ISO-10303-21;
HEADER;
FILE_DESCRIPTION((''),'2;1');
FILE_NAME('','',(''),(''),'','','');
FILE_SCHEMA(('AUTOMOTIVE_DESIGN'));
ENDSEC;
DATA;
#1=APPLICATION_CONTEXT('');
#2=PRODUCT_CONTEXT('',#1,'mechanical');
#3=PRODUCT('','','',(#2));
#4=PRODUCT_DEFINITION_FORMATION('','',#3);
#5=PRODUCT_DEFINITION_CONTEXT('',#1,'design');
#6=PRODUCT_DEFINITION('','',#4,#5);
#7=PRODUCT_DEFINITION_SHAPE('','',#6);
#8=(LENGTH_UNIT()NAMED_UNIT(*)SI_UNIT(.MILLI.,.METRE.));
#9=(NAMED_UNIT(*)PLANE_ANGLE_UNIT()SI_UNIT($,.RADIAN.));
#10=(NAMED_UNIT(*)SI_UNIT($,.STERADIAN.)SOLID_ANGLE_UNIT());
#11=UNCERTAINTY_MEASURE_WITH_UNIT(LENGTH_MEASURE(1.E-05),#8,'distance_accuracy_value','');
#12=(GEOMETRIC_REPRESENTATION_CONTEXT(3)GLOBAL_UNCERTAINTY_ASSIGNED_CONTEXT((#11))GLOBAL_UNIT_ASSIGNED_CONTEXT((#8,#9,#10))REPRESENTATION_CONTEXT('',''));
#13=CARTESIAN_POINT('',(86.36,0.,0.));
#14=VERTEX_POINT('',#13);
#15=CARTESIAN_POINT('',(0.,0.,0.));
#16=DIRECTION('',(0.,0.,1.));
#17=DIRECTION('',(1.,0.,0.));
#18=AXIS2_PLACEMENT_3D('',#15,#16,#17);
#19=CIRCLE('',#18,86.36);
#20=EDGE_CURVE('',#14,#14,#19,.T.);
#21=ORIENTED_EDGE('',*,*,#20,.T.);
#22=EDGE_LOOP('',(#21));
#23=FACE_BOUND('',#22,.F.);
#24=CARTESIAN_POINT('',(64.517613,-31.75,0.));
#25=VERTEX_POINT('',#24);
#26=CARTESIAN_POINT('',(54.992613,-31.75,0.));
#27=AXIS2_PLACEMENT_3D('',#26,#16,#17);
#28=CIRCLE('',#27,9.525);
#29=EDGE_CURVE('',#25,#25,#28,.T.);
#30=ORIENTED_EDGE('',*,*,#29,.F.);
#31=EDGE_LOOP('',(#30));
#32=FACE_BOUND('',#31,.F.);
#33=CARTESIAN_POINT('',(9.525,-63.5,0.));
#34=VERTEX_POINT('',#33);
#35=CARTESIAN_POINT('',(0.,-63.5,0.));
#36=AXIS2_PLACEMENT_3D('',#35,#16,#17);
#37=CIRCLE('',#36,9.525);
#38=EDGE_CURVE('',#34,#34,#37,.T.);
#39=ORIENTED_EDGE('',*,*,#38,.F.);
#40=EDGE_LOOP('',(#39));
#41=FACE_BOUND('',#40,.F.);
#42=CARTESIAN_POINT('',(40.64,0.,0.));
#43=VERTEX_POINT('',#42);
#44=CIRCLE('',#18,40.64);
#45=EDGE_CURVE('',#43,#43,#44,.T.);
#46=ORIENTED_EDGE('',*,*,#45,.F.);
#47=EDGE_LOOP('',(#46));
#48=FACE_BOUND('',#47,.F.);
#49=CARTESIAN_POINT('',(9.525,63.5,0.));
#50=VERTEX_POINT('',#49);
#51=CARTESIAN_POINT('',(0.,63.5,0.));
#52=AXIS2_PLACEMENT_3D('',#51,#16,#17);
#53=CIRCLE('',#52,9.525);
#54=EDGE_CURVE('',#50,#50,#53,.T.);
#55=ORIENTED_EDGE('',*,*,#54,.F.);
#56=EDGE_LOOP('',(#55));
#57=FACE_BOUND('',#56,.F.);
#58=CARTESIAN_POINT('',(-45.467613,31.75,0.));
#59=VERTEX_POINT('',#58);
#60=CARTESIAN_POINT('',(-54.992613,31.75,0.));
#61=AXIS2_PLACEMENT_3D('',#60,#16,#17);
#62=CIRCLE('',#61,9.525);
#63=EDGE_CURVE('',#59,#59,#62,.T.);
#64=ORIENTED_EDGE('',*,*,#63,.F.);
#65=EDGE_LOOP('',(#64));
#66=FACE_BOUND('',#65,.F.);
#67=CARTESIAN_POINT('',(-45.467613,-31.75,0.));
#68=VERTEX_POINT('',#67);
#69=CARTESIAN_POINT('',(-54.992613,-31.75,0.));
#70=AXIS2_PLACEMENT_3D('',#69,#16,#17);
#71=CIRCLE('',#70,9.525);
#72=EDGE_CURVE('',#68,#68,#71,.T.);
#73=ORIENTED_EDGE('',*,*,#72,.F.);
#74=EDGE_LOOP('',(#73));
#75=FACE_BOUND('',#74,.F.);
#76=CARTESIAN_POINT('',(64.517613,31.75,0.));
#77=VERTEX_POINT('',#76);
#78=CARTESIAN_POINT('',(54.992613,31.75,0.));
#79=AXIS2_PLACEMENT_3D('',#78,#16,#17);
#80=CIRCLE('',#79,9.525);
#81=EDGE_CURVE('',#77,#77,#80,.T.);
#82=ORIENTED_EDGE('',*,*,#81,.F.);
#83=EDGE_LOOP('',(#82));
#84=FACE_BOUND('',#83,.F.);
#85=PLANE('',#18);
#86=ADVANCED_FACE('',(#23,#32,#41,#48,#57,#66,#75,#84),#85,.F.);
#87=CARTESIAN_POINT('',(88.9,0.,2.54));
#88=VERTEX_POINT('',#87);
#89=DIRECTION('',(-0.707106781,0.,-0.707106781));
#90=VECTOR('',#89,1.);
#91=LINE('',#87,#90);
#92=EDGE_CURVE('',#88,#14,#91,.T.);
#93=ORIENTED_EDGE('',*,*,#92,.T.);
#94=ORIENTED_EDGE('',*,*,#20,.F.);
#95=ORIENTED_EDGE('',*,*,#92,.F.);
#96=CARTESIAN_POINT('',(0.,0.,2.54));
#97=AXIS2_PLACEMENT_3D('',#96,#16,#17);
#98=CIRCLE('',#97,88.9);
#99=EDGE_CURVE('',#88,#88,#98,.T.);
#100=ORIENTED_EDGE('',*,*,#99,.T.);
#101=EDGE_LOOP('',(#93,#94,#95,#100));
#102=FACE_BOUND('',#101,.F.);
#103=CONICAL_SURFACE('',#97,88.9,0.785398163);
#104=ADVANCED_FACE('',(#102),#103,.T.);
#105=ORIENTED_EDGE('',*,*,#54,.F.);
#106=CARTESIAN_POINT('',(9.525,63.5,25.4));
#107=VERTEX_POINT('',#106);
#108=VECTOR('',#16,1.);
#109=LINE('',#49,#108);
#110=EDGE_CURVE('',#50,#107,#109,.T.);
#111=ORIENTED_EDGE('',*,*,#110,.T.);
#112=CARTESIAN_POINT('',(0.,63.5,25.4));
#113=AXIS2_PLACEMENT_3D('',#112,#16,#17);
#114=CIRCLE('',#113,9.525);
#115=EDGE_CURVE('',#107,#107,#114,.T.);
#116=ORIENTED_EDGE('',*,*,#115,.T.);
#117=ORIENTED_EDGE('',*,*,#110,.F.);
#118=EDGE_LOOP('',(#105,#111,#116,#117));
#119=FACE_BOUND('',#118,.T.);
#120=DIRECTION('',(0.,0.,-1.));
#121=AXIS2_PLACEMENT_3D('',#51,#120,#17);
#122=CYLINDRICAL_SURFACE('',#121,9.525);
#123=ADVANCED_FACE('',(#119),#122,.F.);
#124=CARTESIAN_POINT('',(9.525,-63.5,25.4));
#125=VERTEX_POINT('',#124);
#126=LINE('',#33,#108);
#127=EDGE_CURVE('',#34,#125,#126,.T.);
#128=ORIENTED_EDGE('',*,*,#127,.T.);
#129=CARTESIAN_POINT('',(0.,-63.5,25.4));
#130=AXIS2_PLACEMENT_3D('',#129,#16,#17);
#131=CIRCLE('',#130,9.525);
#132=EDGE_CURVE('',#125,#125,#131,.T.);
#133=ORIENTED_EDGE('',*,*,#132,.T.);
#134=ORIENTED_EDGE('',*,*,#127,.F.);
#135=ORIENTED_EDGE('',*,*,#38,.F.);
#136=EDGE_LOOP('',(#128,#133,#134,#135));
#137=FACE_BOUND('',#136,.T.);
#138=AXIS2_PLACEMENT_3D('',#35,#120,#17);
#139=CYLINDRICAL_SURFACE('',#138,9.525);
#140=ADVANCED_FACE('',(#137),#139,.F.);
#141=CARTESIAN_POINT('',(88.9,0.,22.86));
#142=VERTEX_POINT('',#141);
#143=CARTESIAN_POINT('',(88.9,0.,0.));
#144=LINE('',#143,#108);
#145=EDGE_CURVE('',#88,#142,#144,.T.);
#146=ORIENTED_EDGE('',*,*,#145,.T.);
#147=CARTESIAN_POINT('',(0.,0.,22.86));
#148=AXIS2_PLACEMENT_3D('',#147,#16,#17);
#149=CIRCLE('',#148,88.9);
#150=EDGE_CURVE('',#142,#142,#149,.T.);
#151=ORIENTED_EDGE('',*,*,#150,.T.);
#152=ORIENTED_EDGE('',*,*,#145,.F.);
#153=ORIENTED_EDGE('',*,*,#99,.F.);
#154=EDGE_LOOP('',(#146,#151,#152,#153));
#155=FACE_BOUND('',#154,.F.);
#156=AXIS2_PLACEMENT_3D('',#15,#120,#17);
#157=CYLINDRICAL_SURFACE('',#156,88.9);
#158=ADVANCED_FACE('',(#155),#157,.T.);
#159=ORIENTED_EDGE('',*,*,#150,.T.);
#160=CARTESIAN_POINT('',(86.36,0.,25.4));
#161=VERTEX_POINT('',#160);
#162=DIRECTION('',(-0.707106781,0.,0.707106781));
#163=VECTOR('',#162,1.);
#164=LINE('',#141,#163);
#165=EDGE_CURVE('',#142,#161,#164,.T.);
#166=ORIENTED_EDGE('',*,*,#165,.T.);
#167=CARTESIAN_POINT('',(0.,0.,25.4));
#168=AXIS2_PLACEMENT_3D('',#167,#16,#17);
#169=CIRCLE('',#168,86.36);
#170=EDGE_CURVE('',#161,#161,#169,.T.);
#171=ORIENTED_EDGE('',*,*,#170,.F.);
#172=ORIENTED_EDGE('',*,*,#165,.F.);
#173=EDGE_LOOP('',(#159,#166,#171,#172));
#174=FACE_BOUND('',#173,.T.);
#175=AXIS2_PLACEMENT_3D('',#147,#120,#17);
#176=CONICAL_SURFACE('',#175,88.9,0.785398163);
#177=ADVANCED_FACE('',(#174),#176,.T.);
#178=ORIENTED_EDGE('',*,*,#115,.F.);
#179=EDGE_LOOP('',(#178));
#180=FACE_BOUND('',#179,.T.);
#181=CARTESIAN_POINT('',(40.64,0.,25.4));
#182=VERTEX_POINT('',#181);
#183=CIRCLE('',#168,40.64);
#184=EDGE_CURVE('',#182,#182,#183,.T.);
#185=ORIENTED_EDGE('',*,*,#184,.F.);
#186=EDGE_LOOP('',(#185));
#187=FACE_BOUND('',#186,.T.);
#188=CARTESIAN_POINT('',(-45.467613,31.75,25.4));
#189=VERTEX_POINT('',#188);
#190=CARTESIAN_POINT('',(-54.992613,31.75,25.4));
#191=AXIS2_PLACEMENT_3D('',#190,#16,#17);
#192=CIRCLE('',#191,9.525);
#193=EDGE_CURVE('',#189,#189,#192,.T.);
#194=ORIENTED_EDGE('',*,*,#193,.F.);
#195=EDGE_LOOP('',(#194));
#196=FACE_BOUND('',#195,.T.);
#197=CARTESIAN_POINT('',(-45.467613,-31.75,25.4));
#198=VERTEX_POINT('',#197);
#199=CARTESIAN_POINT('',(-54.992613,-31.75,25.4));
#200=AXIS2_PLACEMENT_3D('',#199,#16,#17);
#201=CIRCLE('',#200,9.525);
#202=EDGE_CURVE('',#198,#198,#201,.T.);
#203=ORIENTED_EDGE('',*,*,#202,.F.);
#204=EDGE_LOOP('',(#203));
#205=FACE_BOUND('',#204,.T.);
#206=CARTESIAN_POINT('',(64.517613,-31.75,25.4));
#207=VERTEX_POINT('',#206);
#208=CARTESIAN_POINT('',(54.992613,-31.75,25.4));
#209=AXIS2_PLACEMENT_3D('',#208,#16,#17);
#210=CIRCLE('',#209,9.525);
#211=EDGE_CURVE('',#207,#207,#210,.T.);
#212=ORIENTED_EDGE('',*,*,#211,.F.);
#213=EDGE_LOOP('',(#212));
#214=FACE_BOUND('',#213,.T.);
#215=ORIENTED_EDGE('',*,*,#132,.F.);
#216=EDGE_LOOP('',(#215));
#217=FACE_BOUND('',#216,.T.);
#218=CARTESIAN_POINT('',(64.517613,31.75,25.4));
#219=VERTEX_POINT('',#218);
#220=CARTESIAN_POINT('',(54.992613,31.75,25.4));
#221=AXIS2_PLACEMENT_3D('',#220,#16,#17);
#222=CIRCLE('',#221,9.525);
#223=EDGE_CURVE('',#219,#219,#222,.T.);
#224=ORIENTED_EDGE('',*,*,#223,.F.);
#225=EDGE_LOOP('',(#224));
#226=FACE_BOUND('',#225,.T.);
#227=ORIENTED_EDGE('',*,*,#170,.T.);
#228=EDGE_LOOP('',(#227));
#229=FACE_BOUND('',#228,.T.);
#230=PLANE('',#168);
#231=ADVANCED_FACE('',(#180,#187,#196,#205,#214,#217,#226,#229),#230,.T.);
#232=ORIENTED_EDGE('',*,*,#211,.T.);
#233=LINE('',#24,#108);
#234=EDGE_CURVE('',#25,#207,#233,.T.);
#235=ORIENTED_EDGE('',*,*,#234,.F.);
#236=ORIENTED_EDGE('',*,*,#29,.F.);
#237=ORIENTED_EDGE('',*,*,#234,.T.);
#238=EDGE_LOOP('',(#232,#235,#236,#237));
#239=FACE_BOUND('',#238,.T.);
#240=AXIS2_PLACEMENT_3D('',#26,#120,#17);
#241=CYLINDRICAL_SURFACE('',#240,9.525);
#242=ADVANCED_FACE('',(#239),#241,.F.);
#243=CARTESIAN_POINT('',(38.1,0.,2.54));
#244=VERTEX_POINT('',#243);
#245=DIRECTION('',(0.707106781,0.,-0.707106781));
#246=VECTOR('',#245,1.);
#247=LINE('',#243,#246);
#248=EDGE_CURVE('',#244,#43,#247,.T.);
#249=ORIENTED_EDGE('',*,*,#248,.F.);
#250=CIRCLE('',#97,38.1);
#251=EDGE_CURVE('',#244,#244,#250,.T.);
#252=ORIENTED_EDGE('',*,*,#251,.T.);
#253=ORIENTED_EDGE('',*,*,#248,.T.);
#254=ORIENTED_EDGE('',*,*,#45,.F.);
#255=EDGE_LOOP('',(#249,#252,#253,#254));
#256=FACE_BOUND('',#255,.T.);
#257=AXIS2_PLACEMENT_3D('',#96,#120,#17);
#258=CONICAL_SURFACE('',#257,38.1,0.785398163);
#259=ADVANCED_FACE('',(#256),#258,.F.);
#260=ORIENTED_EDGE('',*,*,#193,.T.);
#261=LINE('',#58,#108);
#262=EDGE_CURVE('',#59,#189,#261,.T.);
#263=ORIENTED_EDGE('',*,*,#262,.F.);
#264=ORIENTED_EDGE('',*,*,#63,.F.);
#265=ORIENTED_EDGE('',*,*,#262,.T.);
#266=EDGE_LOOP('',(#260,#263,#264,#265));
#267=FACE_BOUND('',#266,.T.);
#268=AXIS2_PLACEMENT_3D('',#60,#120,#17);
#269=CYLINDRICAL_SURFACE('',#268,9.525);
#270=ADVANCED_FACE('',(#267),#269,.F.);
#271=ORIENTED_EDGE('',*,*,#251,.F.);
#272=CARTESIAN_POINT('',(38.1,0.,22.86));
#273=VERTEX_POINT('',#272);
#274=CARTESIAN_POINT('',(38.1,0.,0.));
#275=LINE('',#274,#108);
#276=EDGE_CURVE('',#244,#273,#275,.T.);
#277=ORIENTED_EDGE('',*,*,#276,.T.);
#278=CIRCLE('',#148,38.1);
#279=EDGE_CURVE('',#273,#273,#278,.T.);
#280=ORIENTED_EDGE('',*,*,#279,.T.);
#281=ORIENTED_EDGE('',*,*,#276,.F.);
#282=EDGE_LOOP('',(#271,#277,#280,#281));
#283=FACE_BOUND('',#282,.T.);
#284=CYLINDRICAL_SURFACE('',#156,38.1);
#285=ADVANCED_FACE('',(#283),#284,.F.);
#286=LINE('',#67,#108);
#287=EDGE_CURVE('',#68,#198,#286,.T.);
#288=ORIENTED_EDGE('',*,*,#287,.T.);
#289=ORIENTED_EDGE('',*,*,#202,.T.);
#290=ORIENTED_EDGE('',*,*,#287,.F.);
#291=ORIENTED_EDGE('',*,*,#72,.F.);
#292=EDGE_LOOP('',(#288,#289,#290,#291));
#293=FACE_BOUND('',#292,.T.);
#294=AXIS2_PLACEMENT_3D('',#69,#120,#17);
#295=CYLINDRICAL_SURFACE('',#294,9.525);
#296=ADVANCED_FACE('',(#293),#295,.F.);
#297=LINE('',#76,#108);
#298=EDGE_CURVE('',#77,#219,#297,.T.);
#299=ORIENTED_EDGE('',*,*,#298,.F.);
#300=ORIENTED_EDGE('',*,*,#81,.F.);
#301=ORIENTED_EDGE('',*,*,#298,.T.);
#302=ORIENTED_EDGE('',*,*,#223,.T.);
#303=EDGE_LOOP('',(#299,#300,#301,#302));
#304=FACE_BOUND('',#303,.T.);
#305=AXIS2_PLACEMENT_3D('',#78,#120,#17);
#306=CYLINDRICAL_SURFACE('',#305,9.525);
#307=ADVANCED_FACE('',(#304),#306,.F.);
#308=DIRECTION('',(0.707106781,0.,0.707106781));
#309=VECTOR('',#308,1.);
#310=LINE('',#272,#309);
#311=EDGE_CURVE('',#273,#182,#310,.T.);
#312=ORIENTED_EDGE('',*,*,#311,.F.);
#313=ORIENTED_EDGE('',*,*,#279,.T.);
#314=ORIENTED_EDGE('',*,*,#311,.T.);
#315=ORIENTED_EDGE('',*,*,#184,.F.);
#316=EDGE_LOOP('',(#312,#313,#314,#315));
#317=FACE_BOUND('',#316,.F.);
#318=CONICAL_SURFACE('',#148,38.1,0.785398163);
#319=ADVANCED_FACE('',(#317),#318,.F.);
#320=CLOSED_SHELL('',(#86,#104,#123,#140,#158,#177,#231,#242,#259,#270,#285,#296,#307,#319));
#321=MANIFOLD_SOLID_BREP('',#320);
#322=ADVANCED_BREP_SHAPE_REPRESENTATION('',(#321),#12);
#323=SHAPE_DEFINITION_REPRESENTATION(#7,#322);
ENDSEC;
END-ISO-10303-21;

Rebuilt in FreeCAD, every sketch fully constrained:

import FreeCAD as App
import Part
import Sketcher

V = App.Vector
Q = App.Units.Quantity


def edges_at(feature, points):
    """Names of the edges that pass closest to the given points."""
    edges = feature.Shape.Edges
    near = lambda p: min(range(len(edges)), key=lambda i: edges[i].distToShape(Part.Vertex(*p))[0])
    return sorted({f"Edge{near(p) + 1}" for p in points})

doc = App.newDocument("Part")
body = doc.addObject("PartDesign::Body", "Body")

# Sketch on XY plane
sketch1 = doc.addObject("Sketcher::SketchObject", "Sketch")
body.addObject(sketch1)
sketch1.AttachmentSupport = (doc.XY_Plane, [""])
sketch1.MapMode = "FlatFace"
sketch1.addGeometry(Part.Circle(V(0, 0, 0), V(0, 0, 1), 89), False)
sketch1.addGeometry(Part.Circle(V(0, -64, 0), V(0, 0, 1), 10), False)
sketch1.addGeometry(Part.Circle(V(-55, -32, 0), V(0, 0, 1), 10), False)
sketch1.addGeometry(Part.Circle(V(55, -32, 0), V(0, 0, 1), 10), False)
sketch1.addGeometry(Part.Circle(V(-55, 32, 0), V(0, 0, 1), 10), False)
sketch1.addGeometry(Part.Circle(V(0, 0, 0), V(0, 0, 1), 38), False)
sketch1.addGeometry(Part.Circle(V(0, 64, 0), V(0, 0, 1), 10), False)
sketch1.addGeometry(Part.Circle(V(55, 32, 0), V(0, 0, 1), 10), False)
sketch1.addConstraint(Sketcher.Constraint("Coincident", 0, 3, -1, 1))
sketch1.addConstraint(Sketcher.Constraint("Coincident", 5, 3, -1, 1))
sketch1.addConstraint(Sketcher.Constraint("Equal", 1, 2))
sketch1.addConstraint(Sketcher.Constraint("Equal", 2, 3))
sketch1.addConstraint(Sketcher.Constraint("Equal", 3, 4))
sketch1.addConstraint(Sketcher.Constraint("Equal", 4, 6))
sketch1.addConstraint(Sketcher.Constraint("Equal", 6, 7))
sketch1.addConstraint(Sketcher.Constraint("Symmetric", 3, 3, 4, 3, -1, 1))
sketch1.addConstraint(Sketcher.Constraint("Symmetric", 1, 3, 6, 3, -1, 1))
sketch1.addConstraint(Sketcher.Constraint("Symmetric", 2, 3, 7, 3, -1, 1))
sketch1.addConstraint(Sketcher.Constraint("Symmetric", 2, 3, 3, 3, -2))
sketch1.addConstraint(Sketcher.Constraint("PointOnObject", 1, 3, -2))
sketch1.addConstraint(Sketcher.Constraint("Diameter", 0, Q("7 in")))
sketch1.addConstraint(Sketcher.Constraint("Diameter", 5, Q("3 in")))
sketch1.addConstraint(Sketcher.Constraint("Diameter", 1, Q("0.75 in")))
sketch1.addConstraint(Sketcher.Constraint("DistanceY", 1, 3, -1, 1, Q("2.5 in")))
sketch1.addConstraint(Sketcher.Constraint("DistanceY", 2, 3, 4, 3, Q("2.5 in")))
sketch1.addConstraint(Sketcher.Constraint("DistanceX", 2, 3, -1, 1, 54.992613))
pad1 = doc.addObject("PartDesign::Pad", "Pad")
body.addObject(pad1)
pad1.Profile = sketch1
pad1.Length = Q("1 in")
doc.recompute()

chamfer = doc.addObject("PartDesign::Chamfer", "Chamfer")
body.addObject(chamfer)
chamfer.Base = (pad1, edges_at(pad1, [
    (-38.1, 0, 25.4),
    (-88.9, 0, 25.4),
    (-88.9, 0, 0),
    (-38.1, 0, 0),
]))
chamfer.Size = Q("0.1 in")

doc.recompute()
